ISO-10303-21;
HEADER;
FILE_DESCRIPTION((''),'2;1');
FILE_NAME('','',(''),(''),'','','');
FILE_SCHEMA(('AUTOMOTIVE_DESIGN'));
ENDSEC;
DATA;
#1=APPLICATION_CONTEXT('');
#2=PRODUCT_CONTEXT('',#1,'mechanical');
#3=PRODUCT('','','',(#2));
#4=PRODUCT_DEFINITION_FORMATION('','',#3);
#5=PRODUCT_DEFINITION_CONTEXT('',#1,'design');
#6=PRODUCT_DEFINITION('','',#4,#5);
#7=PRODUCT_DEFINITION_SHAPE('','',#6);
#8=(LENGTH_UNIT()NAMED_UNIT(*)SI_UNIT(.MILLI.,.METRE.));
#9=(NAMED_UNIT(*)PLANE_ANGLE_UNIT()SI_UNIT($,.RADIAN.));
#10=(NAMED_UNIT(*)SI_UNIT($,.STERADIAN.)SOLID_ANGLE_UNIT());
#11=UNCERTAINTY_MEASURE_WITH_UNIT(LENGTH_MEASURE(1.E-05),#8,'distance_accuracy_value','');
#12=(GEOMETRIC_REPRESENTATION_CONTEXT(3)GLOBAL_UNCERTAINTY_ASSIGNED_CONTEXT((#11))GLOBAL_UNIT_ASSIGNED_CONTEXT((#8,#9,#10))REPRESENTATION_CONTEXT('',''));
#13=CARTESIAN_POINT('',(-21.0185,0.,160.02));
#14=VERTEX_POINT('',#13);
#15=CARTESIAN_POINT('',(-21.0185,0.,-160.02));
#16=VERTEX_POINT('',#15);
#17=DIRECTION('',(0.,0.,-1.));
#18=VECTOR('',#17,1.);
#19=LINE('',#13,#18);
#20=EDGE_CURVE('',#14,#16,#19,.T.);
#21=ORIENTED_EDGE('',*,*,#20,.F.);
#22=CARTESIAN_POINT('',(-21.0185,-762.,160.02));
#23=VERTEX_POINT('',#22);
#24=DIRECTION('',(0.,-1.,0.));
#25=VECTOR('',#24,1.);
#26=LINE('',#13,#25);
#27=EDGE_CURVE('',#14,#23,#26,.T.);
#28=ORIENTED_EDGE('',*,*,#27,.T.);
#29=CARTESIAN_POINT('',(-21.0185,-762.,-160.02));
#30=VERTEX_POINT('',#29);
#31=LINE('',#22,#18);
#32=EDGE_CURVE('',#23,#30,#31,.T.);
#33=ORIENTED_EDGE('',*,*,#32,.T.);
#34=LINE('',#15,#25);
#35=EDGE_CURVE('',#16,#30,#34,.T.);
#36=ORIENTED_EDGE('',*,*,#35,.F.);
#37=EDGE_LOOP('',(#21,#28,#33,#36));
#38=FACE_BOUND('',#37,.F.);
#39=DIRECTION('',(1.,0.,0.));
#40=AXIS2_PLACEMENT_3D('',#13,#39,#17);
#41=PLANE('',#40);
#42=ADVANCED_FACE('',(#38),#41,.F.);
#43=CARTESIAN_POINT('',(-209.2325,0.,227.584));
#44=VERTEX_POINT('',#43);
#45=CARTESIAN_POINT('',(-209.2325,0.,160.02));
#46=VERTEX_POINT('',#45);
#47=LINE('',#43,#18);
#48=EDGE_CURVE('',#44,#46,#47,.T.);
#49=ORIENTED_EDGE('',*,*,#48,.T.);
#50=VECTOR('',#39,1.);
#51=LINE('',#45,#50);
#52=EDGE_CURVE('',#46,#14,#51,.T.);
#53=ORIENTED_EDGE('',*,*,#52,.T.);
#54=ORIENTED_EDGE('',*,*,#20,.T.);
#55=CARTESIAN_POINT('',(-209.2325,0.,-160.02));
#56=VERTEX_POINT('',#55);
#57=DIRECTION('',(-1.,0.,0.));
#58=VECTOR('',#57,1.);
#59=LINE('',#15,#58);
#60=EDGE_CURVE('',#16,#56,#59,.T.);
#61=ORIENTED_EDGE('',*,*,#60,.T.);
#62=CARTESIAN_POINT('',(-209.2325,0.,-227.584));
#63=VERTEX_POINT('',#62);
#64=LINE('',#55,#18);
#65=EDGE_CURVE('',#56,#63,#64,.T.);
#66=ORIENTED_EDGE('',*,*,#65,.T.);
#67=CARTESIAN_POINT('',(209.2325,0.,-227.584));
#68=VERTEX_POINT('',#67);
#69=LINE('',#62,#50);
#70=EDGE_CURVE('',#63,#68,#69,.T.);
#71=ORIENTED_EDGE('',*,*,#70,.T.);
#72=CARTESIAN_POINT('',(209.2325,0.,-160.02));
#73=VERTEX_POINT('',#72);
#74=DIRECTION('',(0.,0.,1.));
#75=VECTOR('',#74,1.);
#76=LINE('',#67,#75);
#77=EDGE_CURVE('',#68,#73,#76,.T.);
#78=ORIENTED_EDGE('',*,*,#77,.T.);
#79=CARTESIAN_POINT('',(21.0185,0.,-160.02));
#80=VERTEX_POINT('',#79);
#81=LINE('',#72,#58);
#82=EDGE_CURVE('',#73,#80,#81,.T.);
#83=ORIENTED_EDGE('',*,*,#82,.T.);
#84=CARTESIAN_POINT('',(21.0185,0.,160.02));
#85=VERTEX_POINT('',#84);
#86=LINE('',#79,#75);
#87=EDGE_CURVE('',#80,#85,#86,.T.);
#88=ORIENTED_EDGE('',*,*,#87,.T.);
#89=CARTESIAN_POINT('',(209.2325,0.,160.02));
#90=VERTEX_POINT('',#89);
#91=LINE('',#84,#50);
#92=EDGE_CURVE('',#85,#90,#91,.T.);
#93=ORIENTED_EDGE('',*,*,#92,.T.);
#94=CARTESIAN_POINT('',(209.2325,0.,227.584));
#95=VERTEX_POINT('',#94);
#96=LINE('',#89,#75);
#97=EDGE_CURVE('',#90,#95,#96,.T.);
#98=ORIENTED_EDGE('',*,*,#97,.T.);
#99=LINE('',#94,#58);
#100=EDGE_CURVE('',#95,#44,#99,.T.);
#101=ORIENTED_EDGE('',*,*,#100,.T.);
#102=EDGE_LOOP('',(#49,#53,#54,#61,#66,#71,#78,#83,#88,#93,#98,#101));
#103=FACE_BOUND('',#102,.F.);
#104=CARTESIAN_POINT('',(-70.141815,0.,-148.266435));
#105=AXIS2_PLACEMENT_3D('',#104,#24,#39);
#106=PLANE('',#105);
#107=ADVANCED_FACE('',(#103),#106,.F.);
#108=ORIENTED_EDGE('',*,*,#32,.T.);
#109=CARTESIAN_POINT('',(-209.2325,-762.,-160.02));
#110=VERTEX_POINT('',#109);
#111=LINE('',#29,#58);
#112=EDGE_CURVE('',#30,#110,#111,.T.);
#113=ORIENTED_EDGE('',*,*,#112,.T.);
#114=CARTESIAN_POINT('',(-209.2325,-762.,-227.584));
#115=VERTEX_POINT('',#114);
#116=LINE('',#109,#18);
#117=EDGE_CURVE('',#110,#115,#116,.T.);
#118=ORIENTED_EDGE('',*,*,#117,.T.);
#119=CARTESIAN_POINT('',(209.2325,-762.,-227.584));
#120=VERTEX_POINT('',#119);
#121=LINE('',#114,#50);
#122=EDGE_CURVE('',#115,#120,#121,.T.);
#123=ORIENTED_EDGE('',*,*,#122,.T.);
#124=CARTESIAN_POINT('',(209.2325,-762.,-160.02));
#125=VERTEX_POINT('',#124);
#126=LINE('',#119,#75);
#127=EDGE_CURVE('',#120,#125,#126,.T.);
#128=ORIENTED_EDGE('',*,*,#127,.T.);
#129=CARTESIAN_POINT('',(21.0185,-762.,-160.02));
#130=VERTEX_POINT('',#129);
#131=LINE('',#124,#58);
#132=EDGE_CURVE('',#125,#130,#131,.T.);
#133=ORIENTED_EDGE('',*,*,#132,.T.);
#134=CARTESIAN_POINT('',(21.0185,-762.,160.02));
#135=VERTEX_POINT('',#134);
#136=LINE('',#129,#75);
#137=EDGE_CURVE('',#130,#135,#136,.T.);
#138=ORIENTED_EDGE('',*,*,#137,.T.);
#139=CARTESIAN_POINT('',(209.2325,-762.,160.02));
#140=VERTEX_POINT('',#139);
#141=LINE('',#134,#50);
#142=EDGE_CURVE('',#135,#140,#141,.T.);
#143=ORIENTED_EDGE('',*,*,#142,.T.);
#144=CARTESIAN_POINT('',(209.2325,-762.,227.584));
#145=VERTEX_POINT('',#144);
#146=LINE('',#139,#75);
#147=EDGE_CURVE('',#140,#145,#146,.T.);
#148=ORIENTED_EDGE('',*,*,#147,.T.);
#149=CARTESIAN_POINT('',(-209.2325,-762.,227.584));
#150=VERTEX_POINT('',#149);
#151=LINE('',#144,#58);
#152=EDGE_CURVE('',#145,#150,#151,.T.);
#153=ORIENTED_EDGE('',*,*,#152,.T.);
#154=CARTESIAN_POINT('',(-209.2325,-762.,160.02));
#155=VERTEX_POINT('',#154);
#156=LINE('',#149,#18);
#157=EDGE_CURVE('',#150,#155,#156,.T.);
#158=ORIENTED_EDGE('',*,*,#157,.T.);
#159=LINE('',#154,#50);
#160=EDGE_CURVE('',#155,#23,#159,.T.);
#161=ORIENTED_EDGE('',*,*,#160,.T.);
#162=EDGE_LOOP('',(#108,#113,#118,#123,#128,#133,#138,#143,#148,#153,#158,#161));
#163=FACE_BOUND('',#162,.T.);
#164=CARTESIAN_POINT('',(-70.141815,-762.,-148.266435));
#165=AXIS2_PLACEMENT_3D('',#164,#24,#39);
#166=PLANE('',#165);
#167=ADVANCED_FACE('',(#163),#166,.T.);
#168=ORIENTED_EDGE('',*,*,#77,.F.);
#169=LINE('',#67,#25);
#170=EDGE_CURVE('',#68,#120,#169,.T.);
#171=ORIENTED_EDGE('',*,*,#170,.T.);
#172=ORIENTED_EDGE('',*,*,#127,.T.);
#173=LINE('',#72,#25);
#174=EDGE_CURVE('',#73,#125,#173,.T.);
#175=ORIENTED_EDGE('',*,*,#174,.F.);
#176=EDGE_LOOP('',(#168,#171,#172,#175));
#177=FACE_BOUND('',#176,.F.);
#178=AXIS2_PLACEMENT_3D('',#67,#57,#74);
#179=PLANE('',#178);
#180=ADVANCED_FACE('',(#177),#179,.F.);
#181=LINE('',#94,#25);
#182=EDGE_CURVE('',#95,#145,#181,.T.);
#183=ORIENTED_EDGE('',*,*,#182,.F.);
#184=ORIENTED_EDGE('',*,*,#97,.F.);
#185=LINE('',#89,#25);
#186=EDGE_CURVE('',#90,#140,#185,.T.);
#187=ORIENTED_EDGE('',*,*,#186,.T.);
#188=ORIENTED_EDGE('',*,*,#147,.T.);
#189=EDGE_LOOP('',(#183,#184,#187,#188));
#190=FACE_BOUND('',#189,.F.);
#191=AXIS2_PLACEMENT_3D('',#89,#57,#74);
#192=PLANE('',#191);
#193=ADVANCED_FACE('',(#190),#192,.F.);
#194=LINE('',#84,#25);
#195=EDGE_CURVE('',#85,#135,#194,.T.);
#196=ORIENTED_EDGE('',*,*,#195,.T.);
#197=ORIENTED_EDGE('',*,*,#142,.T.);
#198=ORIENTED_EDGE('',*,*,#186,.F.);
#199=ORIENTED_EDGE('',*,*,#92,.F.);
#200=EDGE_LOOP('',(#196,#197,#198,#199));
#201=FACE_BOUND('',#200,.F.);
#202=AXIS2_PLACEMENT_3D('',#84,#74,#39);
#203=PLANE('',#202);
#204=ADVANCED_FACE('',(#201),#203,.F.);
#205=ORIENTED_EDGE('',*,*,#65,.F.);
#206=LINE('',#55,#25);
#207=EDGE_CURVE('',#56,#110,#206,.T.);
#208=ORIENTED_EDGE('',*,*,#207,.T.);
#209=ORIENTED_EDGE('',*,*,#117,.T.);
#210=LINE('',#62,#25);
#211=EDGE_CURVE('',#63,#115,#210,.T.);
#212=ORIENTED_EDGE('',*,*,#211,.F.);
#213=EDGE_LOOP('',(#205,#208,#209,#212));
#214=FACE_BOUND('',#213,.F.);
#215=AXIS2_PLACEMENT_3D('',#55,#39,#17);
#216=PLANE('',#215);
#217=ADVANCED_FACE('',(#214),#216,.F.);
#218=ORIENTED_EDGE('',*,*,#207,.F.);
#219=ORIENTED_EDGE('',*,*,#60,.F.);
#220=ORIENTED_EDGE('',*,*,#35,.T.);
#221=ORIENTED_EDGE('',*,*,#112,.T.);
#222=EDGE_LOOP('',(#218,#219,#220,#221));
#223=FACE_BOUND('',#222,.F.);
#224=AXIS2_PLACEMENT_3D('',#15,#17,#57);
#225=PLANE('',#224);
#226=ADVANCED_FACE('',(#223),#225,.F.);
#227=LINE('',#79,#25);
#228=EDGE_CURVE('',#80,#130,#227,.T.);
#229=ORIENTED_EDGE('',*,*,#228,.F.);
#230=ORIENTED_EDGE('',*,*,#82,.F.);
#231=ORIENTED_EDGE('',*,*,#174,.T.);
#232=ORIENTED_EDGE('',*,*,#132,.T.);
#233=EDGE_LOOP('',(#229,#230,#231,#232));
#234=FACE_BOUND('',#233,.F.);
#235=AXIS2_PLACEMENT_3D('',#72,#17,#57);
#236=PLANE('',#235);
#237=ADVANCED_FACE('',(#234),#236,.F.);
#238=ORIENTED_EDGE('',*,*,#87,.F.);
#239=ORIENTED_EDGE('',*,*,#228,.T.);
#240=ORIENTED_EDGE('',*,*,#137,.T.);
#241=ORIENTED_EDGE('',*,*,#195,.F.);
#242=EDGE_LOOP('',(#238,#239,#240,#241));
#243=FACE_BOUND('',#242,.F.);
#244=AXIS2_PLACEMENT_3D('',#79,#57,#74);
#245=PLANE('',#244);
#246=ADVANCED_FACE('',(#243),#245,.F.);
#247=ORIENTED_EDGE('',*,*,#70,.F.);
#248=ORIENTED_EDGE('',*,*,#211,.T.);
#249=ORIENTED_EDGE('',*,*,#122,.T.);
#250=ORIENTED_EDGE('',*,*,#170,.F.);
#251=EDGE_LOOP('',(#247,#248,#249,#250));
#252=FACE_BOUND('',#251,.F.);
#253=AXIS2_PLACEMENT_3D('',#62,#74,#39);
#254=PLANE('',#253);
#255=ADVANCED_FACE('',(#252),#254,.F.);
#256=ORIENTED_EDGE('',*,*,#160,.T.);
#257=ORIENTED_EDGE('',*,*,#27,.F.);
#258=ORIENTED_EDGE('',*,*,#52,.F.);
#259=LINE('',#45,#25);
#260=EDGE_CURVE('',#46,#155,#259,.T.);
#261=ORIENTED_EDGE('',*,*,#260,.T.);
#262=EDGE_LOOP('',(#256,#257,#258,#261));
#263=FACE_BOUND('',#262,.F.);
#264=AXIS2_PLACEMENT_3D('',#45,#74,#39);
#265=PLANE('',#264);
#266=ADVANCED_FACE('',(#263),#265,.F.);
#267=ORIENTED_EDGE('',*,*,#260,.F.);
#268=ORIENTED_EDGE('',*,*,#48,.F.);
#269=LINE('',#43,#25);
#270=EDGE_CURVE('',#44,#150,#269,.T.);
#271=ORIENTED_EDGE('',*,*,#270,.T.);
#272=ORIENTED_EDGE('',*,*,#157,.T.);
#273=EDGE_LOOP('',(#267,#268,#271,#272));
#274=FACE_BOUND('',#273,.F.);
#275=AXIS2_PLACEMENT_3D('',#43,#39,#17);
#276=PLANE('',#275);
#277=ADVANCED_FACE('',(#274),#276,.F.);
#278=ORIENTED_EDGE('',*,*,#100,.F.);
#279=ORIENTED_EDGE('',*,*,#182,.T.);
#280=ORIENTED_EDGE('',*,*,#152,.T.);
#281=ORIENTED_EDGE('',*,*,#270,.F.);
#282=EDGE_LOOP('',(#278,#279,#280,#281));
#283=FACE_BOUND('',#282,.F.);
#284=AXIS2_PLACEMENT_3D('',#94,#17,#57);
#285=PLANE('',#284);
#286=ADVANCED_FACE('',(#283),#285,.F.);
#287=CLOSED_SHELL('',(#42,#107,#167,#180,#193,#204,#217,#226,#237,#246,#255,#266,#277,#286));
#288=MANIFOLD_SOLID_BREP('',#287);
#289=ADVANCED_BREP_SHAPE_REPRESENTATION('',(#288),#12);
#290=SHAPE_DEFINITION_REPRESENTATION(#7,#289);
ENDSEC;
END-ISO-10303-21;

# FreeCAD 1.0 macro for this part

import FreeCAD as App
import Part
import Sketcher
from FreeCAD import Vector
Q = App.Units.Quantity

doc = App.newDocument("Part")
body = doc.addObject("PartDesign::Body", "Body")

sketch1 = body.newObject("Sketcher::SketchObject", "Sketch")
sketch1.AttachmentSupport = (doc.getObject("XZ_Plane"), [""])
sketch1.MapMode = "FlatFace"
sketch1.addGeometry(Part.LineSegment(Vector(-209, 228, 0), Vector(-209, 160, 0)), False)
sketch1.addGeometry(Part.LineSegment(Vector(-209, 160, 0), Vector(-21, 160, 0)), False)
sketch1.addGeometry(Part.LineSegment(Vector(-21, 160, 0), Vector(-21, -160, 0)), False)
sketch1.addGeometry(Part.LineSegment(Vector(-21, -160, 0), Vector(-209, -160, 0)), False)
sketch1.addGeometry(Part.LineSegment(Vector(-209, -160, 0), Vector(-209, -228, 0)), False)
sketch1.addGeometry(Part.LineSegment(Vector(-209, -228, 0), Vector(209, -228, 0)), False)
sketch1.addGeometry(Part.LineSegment(Vector(209, -228, 0), Vector(209, -160, 0)), False)
sketch1.addGeometry(Part.LineSegment(Vector(209, -160, 0), Vector(21, -160, 0)), False)
sketch1.addGeometry(Part.LineSegment(Vector(21, -160, 0), Vector(21, 160, 0)), False)
sketch1.addGeometry(Part.LineSegment(Vector(21, 160, 0), Vector(209, 160, 0)), False)
sketch1.addGeometry(Part.LineSegment(Vector(209, 160, 0), Vector(209, 228, 0)), False)
sketch1.addGeometry(Part.LineSegment(Vector(209, 228, 0), Vector(-209, 228, 0)), False)
sketch1.addConstraint(Sketcher.Constraint("Coincident", 0, 2, 1, 1))
sketch1.addConstraint(Sketcher.Constraint("Coincident", 1, 2, 2, 1))
sketch1.addConstraint(Sketcher.Constraint("Coincident", 2, 2, 3, 1))
sketch1.addConstraint(Sketcher.Constraint("Coincident", 3, 2, 4, 1))
sketch1.addConstraint(Sketcher.Constraint("Coincident", 4, 2, 5, 1))
sketch1.addConstraint(Sketcher.Constraint("Coincident", 5, 2, 6, 1))
sketch1.addConstraint(Sketcher.Constraint("Coincident", 6, 2, 7, 1))
sketch1.addConstraint(Sketcher.Constraint("Coincident", 7, 2, 8, 1))
sketch1.addConstraint(Sketcher.Constraint("Coincident", 8, 2, 9, 1))
sketch1.addConstraint(Sketcher.Constraint("Coincident", 9, 2, 10, 1))
sketch1.addConstraint(Sketcher.Constraint("Coincident", 10, 2, 11, 1))
sketch1.addConstraint(Sketcher.Constraint("Coincident", 11, 2, 0, 1))
sketch1.addConstraint(Sketcher.Constraint("Vertical", 0))
sketch1.addConstraint(Sketcher.Constraint("Horizontal", 1))
sketch1.addConstraint(Sketcher.Constraint("Vertical", 2))
sketch1.addConstraint(Sketcher.Constraint("Horizontal", 3))
sketch1.addConstraint(Sketcher.Constraint("Vertical", 4))
sketch1.addConstraint(Sketcher.Constraint("Horizontal", 5))
sketch1.addConstraint(Sketcher.Constraint("Vertical", 6))
sketch1.addConstraint(Sketcher.Constraint("Horizontal", 7))
sketch1.addConstraint(Sketcher.Constraint("Vertical", 8))
sketch1.addConstraint(Sketcher.Constraint("Horizontal", 9))
sketch1.addConstraint(Sketcher.Constraint("Vertical", 10))
sketch1.addConstraint(Sketcher.Constraint("Horizontal", 11))
sketch1.addConstraint(Sketcher.Constraint("Symmetric", 0, 2, 6, 2, -1, 1))
sketch1.addConstraint(Sketcher.Constraint("Symmetric", 2, 2, 8, 2, -1, 1))
sketch1.addConstraint(Sketcher.Constraint("Symmetric", 4, 2, 10, 2, -1, 1))
sketch1.addConstraint(Sketcher.Constraint("Symmetric", 3, 2, 6, 2, -2))
sketch1.addConstraint(Sketcher.Constraint("DistanceY", 2, 2, 2, 1, Q("12.6 in")))
sketch1.addConstraint(Sketcher.Constraint("DistanceX", 1, 1, 1, 2, Q("7.41 in")))
sketch1.addConstraint(Sketcher.Constraint("DistanceY", 0, 2, 0, 1, Q("2.66 in")))
sketch1.addConstraint(Sketcher.Constraint("DistanceX", 5, 1, 5, 2, Q("16.475 in")))
pad1 = body.newObject("PartDesign::Pad", "Pad")
pad1.Profile = sketch1
pad1.Length = Q("30 in")

doc.recompute()
